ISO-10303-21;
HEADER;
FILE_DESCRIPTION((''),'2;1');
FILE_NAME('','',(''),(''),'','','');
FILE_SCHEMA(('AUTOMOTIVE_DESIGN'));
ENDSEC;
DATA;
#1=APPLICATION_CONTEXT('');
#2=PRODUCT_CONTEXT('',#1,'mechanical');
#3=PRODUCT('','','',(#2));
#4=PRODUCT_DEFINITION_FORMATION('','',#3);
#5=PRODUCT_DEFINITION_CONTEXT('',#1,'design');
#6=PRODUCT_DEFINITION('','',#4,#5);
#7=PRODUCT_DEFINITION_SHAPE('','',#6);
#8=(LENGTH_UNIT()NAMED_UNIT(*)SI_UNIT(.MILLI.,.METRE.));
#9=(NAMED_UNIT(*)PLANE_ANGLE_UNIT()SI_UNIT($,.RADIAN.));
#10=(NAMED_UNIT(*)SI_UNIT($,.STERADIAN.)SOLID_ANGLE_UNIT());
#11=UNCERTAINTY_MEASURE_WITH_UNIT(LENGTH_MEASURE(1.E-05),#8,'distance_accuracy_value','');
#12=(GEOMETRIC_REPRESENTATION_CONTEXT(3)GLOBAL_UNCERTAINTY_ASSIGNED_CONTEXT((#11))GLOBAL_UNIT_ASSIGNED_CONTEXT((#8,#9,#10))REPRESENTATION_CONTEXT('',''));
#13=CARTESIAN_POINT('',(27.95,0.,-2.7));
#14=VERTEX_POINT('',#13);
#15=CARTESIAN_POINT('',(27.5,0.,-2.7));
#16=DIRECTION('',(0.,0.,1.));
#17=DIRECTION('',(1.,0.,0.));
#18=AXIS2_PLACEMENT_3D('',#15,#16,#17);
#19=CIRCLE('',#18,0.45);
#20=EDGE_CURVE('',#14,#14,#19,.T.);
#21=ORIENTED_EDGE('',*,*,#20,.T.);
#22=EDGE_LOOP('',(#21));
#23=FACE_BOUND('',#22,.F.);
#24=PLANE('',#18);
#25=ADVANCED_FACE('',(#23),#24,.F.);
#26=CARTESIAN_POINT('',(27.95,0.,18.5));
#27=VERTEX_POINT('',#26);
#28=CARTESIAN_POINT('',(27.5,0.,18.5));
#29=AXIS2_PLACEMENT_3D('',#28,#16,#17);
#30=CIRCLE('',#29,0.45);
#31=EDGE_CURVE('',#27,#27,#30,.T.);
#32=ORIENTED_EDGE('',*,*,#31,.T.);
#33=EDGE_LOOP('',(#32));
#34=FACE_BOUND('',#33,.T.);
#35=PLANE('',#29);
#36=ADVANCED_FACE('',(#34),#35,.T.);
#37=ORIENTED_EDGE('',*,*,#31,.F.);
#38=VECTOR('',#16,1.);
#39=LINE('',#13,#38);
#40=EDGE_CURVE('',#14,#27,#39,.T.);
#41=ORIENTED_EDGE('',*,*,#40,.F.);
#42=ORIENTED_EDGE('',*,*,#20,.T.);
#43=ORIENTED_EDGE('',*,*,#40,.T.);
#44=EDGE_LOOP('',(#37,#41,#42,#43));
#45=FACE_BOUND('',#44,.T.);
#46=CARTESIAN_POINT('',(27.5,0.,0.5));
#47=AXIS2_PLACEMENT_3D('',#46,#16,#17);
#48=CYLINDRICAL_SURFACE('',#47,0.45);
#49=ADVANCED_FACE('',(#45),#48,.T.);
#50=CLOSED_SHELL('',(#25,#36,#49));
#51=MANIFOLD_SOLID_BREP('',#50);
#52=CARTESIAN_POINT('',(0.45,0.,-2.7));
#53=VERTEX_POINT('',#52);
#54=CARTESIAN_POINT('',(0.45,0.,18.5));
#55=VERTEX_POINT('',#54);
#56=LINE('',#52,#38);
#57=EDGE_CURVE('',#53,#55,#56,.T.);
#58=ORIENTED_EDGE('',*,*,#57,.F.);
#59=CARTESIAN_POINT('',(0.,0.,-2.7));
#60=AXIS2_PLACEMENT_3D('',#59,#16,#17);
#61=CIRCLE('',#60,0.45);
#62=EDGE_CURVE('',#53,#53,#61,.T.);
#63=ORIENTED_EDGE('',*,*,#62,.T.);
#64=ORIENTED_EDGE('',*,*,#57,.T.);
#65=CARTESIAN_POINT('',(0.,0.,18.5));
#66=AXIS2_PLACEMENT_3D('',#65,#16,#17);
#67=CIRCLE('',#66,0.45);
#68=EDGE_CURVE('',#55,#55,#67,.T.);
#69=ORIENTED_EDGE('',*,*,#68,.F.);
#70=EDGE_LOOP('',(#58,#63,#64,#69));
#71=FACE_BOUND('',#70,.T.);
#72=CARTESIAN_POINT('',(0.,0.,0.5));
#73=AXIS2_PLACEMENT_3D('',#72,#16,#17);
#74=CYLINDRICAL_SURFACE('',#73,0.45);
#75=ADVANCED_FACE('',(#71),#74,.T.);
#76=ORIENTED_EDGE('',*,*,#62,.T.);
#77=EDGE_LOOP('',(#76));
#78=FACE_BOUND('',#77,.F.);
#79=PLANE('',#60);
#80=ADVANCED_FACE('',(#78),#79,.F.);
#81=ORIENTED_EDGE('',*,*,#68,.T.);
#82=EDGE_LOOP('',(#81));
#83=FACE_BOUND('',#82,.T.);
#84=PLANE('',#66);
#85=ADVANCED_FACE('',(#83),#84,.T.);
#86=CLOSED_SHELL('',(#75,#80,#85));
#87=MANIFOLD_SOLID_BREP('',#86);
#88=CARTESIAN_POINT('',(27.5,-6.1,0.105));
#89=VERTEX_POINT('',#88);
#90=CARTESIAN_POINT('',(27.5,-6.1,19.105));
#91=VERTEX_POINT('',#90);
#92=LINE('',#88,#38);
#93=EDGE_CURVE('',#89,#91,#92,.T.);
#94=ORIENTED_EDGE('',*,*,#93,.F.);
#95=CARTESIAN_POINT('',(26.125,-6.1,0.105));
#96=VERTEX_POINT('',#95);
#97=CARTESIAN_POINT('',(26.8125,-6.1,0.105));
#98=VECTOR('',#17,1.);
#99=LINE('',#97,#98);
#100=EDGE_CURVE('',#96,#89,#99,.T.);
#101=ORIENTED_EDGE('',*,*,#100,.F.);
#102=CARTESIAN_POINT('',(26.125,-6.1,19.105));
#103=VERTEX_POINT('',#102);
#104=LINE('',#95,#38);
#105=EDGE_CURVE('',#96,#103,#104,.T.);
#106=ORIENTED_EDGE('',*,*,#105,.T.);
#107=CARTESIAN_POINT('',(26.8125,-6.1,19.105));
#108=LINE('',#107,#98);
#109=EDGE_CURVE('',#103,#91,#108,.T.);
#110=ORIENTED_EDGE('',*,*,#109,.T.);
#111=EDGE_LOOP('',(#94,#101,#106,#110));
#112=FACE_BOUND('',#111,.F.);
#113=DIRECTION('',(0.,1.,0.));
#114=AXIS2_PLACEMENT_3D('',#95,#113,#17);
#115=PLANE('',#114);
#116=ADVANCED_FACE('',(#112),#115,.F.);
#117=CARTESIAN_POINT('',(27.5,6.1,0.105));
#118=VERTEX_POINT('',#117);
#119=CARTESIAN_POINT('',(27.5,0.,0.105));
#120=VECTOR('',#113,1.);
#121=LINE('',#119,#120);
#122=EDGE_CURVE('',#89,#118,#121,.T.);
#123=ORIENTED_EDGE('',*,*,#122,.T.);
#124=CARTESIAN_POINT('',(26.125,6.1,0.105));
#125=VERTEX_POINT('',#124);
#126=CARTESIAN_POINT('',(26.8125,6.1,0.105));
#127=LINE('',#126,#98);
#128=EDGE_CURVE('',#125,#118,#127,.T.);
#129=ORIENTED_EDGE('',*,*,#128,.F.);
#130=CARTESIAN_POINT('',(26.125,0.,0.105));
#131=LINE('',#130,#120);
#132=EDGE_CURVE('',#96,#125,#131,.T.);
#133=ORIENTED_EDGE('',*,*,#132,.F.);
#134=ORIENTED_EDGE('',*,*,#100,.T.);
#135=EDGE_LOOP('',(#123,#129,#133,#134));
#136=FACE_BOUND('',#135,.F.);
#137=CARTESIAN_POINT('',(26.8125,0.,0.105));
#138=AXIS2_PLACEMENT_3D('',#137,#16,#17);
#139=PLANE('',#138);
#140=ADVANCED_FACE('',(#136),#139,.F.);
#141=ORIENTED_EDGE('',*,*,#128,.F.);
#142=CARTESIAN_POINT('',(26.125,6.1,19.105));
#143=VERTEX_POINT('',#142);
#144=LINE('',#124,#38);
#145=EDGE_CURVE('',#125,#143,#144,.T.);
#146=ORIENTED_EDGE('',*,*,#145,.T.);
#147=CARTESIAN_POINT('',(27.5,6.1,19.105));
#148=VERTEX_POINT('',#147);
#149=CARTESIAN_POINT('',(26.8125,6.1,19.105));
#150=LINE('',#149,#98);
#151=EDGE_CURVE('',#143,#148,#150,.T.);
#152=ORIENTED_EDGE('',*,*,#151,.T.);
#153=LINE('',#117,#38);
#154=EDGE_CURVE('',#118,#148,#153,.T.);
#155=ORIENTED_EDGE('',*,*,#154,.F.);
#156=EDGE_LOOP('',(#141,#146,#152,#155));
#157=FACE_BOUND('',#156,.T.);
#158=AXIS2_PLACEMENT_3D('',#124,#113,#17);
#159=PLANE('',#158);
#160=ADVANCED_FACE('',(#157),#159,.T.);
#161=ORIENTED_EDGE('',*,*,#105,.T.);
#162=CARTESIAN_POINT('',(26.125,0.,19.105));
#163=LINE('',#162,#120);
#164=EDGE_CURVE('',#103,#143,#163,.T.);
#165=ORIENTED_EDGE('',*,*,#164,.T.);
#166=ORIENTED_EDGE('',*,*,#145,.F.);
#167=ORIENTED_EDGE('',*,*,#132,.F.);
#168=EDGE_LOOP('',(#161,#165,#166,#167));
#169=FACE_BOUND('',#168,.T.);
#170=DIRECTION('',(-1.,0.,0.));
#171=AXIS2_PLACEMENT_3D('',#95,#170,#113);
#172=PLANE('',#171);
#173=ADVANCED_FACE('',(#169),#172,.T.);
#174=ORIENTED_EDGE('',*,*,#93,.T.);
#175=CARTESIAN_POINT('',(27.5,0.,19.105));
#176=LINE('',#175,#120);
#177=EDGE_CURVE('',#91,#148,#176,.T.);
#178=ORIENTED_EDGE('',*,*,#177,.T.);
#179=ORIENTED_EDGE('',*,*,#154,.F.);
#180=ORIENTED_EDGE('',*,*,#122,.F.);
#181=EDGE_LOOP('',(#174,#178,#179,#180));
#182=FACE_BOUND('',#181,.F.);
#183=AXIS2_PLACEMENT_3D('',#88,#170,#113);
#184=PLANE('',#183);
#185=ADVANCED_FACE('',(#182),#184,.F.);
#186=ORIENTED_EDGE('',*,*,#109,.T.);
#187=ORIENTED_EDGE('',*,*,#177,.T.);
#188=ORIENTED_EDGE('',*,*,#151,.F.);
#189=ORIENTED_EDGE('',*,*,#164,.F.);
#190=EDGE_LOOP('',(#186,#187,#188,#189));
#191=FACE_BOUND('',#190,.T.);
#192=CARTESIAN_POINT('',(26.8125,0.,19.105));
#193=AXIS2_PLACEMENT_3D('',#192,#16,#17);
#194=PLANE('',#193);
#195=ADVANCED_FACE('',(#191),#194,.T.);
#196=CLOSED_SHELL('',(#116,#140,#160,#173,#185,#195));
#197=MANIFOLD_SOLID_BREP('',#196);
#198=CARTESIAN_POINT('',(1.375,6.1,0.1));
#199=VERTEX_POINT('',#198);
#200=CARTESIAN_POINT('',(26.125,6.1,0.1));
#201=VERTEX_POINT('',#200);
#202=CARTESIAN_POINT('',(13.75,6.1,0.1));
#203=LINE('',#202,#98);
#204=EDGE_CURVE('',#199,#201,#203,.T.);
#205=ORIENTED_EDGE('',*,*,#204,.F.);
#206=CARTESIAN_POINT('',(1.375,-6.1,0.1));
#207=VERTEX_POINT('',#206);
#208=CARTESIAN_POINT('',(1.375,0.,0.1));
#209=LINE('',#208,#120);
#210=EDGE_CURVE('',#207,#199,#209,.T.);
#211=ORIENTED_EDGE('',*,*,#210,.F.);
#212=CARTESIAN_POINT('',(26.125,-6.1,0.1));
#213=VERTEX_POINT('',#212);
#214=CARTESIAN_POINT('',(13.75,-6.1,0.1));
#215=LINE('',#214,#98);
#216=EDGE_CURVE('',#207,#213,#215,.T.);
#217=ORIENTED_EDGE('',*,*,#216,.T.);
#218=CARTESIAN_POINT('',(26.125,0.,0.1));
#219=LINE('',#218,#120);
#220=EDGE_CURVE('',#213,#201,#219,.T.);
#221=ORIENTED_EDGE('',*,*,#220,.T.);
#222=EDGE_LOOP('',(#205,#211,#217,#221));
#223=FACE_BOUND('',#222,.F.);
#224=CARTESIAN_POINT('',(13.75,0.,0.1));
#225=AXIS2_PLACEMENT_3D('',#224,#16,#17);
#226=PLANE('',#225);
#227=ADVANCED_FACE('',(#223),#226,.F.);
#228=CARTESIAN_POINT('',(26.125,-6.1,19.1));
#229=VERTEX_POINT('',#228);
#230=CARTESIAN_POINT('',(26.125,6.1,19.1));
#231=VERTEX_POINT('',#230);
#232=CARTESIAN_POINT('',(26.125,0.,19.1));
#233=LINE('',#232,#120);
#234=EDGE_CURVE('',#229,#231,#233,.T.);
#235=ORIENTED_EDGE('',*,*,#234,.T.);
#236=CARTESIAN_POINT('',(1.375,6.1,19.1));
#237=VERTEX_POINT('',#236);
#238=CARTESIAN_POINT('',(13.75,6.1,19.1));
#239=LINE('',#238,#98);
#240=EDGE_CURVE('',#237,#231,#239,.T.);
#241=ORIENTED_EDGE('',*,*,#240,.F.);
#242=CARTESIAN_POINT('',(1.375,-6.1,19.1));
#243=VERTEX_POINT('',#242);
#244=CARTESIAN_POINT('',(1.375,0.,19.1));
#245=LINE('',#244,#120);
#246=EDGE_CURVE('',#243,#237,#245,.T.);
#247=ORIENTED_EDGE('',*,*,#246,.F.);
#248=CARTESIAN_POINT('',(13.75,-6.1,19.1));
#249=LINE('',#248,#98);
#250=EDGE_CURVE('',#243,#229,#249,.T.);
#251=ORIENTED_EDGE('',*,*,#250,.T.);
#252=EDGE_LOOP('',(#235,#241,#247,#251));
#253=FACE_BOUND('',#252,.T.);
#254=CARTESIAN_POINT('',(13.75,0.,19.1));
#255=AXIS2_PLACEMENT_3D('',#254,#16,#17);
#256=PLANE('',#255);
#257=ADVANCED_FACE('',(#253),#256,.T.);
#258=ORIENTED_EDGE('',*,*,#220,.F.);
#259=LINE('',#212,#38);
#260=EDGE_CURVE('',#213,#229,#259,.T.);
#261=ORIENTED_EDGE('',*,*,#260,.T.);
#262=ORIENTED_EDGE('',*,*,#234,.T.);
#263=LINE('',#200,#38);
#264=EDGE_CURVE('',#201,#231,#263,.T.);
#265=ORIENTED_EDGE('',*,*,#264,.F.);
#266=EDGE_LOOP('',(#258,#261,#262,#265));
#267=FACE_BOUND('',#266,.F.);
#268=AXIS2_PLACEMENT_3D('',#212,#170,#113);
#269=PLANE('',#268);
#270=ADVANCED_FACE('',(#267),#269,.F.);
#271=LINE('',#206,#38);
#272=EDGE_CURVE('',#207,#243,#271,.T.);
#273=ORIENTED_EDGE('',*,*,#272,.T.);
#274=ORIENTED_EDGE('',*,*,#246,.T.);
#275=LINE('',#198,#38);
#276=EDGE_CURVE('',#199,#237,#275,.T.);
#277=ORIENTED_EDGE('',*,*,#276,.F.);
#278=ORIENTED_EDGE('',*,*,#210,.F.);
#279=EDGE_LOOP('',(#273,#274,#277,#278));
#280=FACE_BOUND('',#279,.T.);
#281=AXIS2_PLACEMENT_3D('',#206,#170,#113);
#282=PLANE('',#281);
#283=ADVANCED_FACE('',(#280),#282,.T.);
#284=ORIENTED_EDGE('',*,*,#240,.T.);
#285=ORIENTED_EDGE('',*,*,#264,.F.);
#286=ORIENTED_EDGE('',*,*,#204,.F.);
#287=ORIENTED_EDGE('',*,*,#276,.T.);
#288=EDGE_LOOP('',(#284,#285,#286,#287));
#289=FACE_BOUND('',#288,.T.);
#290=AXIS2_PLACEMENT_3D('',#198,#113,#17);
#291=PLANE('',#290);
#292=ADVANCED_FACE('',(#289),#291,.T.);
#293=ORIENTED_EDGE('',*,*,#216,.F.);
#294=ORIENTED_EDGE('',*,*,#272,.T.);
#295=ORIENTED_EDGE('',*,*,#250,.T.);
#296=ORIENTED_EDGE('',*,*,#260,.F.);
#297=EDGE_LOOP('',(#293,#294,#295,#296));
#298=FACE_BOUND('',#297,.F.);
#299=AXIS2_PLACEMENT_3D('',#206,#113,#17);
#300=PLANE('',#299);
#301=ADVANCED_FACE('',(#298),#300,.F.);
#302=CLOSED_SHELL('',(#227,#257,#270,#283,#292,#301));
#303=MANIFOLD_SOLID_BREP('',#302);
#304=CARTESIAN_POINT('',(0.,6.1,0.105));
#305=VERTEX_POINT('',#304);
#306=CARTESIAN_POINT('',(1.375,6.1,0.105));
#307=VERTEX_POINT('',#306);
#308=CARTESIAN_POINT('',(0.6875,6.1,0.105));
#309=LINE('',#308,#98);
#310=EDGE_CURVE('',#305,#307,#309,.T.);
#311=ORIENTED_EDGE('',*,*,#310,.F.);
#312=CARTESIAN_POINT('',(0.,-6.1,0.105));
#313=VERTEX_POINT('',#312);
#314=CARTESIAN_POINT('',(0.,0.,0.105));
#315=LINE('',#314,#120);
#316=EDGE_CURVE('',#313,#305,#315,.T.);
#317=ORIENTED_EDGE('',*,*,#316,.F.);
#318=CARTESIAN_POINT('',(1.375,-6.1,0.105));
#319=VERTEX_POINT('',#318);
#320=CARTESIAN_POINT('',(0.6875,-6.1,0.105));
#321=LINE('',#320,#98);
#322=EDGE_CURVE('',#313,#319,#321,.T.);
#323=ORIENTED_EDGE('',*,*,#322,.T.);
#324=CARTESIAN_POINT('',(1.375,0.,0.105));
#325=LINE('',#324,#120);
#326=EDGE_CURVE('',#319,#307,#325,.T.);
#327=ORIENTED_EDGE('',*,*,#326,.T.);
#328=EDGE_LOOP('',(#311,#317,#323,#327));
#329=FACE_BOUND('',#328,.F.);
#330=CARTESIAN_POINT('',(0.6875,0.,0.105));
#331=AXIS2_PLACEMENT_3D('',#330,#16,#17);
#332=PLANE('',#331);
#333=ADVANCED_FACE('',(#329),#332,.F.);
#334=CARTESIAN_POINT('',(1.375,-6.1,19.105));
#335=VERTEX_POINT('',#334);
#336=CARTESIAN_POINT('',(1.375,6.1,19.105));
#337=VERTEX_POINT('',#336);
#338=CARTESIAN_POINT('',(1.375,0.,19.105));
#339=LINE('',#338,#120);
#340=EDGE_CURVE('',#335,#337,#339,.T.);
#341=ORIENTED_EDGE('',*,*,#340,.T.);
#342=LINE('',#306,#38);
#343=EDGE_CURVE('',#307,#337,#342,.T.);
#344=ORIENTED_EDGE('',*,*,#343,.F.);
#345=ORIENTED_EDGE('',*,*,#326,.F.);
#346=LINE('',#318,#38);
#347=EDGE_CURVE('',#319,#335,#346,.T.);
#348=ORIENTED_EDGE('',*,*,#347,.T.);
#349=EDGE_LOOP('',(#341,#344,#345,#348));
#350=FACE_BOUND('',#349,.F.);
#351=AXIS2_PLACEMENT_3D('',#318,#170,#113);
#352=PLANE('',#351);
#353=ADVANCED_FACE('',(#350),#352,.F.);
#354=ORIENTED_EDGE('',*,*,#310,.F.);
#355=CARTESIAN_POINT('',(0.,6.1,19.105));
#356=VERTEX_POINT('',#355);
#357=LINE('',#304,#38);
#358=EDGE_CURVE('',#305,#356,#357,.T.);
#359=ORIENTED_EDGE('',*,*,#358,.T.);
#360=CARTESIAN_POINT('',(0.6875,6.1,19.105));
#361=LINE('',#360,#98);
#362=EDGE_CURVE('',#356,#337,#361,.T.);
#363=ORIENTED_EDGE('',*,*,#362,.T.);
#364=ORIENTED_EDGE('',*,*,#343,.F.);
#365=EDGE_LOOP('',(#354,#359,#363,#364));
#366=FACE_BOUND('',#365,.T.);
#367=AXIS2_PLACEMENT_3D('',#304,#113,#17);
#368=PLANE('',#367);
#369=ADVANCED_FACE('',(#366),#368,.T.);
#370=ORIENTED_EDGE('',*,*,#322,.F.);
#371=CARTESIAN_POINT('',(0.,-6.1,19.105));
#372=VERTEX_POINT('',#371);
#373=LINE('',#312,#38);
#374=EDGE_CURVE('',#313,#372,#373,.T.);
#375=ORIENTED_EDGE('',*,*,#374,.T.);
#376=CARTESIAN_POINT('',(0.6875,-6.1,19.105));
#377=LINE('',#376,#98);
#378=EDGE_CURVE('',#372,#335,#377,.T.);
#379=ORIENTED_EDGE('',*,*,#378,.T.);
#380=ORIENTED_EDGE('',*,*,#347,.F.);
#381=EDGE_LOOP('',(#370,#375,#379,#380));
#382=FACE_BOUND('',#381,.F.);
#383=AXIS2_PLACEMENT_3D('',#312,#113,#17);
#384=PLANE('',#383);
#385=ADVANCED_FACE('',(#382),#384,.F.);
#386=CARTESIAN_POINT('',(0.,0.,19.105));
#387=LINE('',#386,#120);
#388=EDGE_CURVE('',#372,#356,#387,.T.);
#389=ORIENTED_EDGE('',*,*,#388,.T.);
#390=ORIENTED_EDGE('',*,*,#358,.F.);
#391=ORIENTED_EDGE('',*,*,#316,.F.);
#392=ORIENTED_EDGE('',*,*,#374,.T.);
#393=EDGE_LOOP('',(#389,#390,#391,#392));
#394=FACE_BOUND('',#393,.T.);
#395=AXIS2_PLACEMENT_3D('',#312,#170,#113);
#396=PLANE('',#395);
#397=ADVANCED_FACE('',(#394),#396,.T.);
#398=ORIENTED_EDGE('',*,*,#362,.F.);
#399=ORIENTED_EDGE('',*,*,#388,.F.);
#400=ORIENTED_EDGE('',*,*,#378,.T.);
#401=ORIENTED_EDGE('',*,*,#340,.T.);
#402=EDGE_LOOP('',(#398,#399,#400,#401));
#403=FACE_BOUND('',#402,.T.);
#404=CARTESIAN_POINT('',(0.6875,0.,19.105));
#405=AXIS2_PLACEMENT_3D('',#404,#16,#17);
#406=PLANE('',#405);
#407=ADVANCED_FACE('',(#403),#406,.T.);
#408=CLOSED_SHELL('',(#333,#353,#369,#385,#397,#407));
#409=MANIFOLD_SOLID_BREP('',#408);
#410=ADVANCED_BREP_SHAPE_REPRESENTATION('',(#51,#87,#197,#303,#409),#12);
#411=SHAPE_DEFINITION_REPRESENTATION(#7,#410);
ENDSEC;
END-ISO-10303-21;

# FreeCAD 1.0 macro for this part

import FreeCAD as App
import Part
import Sketcher

doc = App.newDocument("Part")
body = doc.addObject("PartDesign::Body", "Body")

sketch1 = body.newObject("Sketcher::SketchObject", "Sketch")
sketch1.AttachmentSupport = (doc.getObject("XY_Plane"), [""])
sketch1.MapMode = "FlatFace"
sketch1.AttachmentOffset = App.Placement(App.Vector(0, 0, 0.1), App.Rotation())
sketch1.addGeometry([
    Part.LineSegment(App.Vector(1, 6, 0), App.Vector(1, -6, 0)),
    Part.LineSegment(App.Vector(1, -6, 0), App.Vector(26, -6, 0)),
    Part.LineSegment(App.Vector(26, -6, 0), App.Vector(26, 6, 0)),
    Part.LineSegment(App.Vector(26, 6, 0), App.Vector(1, 6, 0)),
], False)
sketch1.addConstraint([
    Sketcher.Constraint("Coincident", 0, 2, 1, 1),
    Sketcher.Constraint("Coincident", 1, 2, 2, 1),
    Sketcher.Constraint("Coincident", 2, 2, 3, 1),
    Sketcher.Constraint("Coincident", 3, 2, 0, 1),
    Sketcher.Constraint("Vertical", 0),
    Sketcher.Constraint("Horizontal", 1),
    Sketcher.Constraint("Vertical", 2),
    Sketcher.Constraint("Horizontal", 3),
    Sketcher.Constraint("DistanceY", 0, 2, 0, 1, 12.2),
    Sketcher.Constraint("DistanceX", 1, 1, 1, 2, 24.75),
    Sketcher.Constraint("DistanceY", 0, 2, -1, 1, 6.1),
    Sketcher.Constraint("DistanceX", -1, 1, 0, 2, 1.375),
])
pad1 = body.newObject("PartDesign::Pad", "Pad")
pad1.Profile = sketch1
pad1.Length = 19
body2 = doc.addObject("PartDesign::Body", "Body001")
body2.AllowCompound = True

sketch2 = body2.newObject("Sketcher::SketchObject", "Sketch001")
sketch2.AttachmentSupport = (doc.getObject("XY_Plane001"), [""])
sketch2.MapMode = "FlatFace"
sketch2.AttachmentOffset = App.Placement(App.Vector(0, 0, 0.5), App.Rotation())
sketch2.addGeometry([
    Part.Circle(App.Vector(0, 0, 0), App.Vector(0, 0, 1), 0.45),
    Part.Circle(App.Vector(27.5, 0, 0), App.Vector(0, 0, 1), 0.45),
], False)
sketch2.addConstraint([
    Sketcher.Constraint("Coincident", 0, 3, -1, 1),
    Sketcher.Constraint("Equal", 0, 1),
    Sketcher.Constraint("PointOnObject", 1, 3, -1),
    Sketcher.Constraint("Diameter", 0, 0.9),
    Sketcher.Constraint("DistanceX", -1, 1, 1, 3, 27.5),
])
pad2 = body2.newObject("PartDesign::Pad", "Pad001")
pad2.Profile = sketch2
pad2.Type = "TwoLengths"
pad2.Length = 18
pad2.Length2 = 3.2
body3 = doc.addObject("PartDesign::Body", "Body002")
body3.AllowCompound = True

sketch3 = body3.newObject("Sketcher::SketchObject", "Sketch002")
sketch3.AttachmentSupport = (doc.getObject("XY_Plane002"), [""])
sketch3.MapMode = "FlatFace"
sketch3.AttachmentOffset = App.Placement(App.Vector(0, 0, 0.105), App.Rotation())
sketch3.addGeometry([
    Part.LineSegment(App.Vector(0, 6.1, 0), App.Vector(0, -6.1, 0)),
    Part.LineSegment(App.Vector(0, -6.1, 0), App.Vector(1.4, -6.1, 0)),
    Part.LineSegment(App.Vector(1.4, -6.1, 0), App.Vector(1.4, 6.1, 0)),
    Part.LineSegment(App.Vector(1.4, 6.1, 0), App.Vector(0, 6.1, 0)),
    Part.LineSegment(App.Vector(26.1, 6.1, 0), App.Vector(26.1, -6.1, 0)),
    Part.LineSegment(App.Vector(26.1, -6.1, 0), App.Vector(27.5, -6.1, 0)),
    Part.LineSegment(App.Vector(27.5, -6.1, 0), App.Vector(27.5, 6.1, 0)),
    Part.LineSegment(App.Vector(27.5, 6.1, 0), App.Vector(26.1, 6.1, 0)),
], False)
sketch3.addConstraint([
    Sketcher.Constraint("Coincident", 0, 2, 1, 1),
    Sketcher.Constraint("Coincident", 1, 2, 2, 1),
    Sketcher.Constraint("Coincident", 2, 2, 3, 1),
    Sketcher.Constraint("Coincident", 3, 2, 0, 1),
    Sketcher.Constraint("Coincident", 4, 2, 5, 1),
    Sketcher.Constraint("Coincident", 5, 2, 6, 1),
    Sketcher.Constraint("Coincident", 6, 2, 7, 1),
    Sketcher.Constraint("Coincident", 7, 2, 4, 1),
    Sketcher.Constraint("Vertical", 0),
    Sketcher.Constraint("Horizontal", 1),
    Sketcher.Constraint("Vertical", 2),
    Sketcher.Constraint("Horizontal", 3),
    Sketcher.Constraint("Vertical", 4),
    Sketcher.Constraint("Horizontal", 5),
    Sketcher.Constraint("Vertical", 6),
    Sketcher.Constraint("Horizontal", 7),
    Sketcher.Constraint("Symmetric", 0, 2, 3, 2, -1, 1),
    Sketcher.Constraint("Horizontal", 1, 2, 4, 2),
    Sketcher.Constraint("Horizontal", 3, 2, 6, 2),
    Sketcher.Constraint("Equal", 3, 5),
    Sketcher.Constraint("DistanceY", 0, 2, 0, 1, 12.2),
    Sketcher.Constraint("DistanceX", -1, 1, 5, 2, 27.5),
    Sketcher.Constraint("DistanceX", 1, 1, 1, 2, 1.375),
])
pad3 = body3.newObject("PartDesign::Pad", "Pad002")
pad3.Profile = sketch3
pad3.Length = 19

doc.recompute()
